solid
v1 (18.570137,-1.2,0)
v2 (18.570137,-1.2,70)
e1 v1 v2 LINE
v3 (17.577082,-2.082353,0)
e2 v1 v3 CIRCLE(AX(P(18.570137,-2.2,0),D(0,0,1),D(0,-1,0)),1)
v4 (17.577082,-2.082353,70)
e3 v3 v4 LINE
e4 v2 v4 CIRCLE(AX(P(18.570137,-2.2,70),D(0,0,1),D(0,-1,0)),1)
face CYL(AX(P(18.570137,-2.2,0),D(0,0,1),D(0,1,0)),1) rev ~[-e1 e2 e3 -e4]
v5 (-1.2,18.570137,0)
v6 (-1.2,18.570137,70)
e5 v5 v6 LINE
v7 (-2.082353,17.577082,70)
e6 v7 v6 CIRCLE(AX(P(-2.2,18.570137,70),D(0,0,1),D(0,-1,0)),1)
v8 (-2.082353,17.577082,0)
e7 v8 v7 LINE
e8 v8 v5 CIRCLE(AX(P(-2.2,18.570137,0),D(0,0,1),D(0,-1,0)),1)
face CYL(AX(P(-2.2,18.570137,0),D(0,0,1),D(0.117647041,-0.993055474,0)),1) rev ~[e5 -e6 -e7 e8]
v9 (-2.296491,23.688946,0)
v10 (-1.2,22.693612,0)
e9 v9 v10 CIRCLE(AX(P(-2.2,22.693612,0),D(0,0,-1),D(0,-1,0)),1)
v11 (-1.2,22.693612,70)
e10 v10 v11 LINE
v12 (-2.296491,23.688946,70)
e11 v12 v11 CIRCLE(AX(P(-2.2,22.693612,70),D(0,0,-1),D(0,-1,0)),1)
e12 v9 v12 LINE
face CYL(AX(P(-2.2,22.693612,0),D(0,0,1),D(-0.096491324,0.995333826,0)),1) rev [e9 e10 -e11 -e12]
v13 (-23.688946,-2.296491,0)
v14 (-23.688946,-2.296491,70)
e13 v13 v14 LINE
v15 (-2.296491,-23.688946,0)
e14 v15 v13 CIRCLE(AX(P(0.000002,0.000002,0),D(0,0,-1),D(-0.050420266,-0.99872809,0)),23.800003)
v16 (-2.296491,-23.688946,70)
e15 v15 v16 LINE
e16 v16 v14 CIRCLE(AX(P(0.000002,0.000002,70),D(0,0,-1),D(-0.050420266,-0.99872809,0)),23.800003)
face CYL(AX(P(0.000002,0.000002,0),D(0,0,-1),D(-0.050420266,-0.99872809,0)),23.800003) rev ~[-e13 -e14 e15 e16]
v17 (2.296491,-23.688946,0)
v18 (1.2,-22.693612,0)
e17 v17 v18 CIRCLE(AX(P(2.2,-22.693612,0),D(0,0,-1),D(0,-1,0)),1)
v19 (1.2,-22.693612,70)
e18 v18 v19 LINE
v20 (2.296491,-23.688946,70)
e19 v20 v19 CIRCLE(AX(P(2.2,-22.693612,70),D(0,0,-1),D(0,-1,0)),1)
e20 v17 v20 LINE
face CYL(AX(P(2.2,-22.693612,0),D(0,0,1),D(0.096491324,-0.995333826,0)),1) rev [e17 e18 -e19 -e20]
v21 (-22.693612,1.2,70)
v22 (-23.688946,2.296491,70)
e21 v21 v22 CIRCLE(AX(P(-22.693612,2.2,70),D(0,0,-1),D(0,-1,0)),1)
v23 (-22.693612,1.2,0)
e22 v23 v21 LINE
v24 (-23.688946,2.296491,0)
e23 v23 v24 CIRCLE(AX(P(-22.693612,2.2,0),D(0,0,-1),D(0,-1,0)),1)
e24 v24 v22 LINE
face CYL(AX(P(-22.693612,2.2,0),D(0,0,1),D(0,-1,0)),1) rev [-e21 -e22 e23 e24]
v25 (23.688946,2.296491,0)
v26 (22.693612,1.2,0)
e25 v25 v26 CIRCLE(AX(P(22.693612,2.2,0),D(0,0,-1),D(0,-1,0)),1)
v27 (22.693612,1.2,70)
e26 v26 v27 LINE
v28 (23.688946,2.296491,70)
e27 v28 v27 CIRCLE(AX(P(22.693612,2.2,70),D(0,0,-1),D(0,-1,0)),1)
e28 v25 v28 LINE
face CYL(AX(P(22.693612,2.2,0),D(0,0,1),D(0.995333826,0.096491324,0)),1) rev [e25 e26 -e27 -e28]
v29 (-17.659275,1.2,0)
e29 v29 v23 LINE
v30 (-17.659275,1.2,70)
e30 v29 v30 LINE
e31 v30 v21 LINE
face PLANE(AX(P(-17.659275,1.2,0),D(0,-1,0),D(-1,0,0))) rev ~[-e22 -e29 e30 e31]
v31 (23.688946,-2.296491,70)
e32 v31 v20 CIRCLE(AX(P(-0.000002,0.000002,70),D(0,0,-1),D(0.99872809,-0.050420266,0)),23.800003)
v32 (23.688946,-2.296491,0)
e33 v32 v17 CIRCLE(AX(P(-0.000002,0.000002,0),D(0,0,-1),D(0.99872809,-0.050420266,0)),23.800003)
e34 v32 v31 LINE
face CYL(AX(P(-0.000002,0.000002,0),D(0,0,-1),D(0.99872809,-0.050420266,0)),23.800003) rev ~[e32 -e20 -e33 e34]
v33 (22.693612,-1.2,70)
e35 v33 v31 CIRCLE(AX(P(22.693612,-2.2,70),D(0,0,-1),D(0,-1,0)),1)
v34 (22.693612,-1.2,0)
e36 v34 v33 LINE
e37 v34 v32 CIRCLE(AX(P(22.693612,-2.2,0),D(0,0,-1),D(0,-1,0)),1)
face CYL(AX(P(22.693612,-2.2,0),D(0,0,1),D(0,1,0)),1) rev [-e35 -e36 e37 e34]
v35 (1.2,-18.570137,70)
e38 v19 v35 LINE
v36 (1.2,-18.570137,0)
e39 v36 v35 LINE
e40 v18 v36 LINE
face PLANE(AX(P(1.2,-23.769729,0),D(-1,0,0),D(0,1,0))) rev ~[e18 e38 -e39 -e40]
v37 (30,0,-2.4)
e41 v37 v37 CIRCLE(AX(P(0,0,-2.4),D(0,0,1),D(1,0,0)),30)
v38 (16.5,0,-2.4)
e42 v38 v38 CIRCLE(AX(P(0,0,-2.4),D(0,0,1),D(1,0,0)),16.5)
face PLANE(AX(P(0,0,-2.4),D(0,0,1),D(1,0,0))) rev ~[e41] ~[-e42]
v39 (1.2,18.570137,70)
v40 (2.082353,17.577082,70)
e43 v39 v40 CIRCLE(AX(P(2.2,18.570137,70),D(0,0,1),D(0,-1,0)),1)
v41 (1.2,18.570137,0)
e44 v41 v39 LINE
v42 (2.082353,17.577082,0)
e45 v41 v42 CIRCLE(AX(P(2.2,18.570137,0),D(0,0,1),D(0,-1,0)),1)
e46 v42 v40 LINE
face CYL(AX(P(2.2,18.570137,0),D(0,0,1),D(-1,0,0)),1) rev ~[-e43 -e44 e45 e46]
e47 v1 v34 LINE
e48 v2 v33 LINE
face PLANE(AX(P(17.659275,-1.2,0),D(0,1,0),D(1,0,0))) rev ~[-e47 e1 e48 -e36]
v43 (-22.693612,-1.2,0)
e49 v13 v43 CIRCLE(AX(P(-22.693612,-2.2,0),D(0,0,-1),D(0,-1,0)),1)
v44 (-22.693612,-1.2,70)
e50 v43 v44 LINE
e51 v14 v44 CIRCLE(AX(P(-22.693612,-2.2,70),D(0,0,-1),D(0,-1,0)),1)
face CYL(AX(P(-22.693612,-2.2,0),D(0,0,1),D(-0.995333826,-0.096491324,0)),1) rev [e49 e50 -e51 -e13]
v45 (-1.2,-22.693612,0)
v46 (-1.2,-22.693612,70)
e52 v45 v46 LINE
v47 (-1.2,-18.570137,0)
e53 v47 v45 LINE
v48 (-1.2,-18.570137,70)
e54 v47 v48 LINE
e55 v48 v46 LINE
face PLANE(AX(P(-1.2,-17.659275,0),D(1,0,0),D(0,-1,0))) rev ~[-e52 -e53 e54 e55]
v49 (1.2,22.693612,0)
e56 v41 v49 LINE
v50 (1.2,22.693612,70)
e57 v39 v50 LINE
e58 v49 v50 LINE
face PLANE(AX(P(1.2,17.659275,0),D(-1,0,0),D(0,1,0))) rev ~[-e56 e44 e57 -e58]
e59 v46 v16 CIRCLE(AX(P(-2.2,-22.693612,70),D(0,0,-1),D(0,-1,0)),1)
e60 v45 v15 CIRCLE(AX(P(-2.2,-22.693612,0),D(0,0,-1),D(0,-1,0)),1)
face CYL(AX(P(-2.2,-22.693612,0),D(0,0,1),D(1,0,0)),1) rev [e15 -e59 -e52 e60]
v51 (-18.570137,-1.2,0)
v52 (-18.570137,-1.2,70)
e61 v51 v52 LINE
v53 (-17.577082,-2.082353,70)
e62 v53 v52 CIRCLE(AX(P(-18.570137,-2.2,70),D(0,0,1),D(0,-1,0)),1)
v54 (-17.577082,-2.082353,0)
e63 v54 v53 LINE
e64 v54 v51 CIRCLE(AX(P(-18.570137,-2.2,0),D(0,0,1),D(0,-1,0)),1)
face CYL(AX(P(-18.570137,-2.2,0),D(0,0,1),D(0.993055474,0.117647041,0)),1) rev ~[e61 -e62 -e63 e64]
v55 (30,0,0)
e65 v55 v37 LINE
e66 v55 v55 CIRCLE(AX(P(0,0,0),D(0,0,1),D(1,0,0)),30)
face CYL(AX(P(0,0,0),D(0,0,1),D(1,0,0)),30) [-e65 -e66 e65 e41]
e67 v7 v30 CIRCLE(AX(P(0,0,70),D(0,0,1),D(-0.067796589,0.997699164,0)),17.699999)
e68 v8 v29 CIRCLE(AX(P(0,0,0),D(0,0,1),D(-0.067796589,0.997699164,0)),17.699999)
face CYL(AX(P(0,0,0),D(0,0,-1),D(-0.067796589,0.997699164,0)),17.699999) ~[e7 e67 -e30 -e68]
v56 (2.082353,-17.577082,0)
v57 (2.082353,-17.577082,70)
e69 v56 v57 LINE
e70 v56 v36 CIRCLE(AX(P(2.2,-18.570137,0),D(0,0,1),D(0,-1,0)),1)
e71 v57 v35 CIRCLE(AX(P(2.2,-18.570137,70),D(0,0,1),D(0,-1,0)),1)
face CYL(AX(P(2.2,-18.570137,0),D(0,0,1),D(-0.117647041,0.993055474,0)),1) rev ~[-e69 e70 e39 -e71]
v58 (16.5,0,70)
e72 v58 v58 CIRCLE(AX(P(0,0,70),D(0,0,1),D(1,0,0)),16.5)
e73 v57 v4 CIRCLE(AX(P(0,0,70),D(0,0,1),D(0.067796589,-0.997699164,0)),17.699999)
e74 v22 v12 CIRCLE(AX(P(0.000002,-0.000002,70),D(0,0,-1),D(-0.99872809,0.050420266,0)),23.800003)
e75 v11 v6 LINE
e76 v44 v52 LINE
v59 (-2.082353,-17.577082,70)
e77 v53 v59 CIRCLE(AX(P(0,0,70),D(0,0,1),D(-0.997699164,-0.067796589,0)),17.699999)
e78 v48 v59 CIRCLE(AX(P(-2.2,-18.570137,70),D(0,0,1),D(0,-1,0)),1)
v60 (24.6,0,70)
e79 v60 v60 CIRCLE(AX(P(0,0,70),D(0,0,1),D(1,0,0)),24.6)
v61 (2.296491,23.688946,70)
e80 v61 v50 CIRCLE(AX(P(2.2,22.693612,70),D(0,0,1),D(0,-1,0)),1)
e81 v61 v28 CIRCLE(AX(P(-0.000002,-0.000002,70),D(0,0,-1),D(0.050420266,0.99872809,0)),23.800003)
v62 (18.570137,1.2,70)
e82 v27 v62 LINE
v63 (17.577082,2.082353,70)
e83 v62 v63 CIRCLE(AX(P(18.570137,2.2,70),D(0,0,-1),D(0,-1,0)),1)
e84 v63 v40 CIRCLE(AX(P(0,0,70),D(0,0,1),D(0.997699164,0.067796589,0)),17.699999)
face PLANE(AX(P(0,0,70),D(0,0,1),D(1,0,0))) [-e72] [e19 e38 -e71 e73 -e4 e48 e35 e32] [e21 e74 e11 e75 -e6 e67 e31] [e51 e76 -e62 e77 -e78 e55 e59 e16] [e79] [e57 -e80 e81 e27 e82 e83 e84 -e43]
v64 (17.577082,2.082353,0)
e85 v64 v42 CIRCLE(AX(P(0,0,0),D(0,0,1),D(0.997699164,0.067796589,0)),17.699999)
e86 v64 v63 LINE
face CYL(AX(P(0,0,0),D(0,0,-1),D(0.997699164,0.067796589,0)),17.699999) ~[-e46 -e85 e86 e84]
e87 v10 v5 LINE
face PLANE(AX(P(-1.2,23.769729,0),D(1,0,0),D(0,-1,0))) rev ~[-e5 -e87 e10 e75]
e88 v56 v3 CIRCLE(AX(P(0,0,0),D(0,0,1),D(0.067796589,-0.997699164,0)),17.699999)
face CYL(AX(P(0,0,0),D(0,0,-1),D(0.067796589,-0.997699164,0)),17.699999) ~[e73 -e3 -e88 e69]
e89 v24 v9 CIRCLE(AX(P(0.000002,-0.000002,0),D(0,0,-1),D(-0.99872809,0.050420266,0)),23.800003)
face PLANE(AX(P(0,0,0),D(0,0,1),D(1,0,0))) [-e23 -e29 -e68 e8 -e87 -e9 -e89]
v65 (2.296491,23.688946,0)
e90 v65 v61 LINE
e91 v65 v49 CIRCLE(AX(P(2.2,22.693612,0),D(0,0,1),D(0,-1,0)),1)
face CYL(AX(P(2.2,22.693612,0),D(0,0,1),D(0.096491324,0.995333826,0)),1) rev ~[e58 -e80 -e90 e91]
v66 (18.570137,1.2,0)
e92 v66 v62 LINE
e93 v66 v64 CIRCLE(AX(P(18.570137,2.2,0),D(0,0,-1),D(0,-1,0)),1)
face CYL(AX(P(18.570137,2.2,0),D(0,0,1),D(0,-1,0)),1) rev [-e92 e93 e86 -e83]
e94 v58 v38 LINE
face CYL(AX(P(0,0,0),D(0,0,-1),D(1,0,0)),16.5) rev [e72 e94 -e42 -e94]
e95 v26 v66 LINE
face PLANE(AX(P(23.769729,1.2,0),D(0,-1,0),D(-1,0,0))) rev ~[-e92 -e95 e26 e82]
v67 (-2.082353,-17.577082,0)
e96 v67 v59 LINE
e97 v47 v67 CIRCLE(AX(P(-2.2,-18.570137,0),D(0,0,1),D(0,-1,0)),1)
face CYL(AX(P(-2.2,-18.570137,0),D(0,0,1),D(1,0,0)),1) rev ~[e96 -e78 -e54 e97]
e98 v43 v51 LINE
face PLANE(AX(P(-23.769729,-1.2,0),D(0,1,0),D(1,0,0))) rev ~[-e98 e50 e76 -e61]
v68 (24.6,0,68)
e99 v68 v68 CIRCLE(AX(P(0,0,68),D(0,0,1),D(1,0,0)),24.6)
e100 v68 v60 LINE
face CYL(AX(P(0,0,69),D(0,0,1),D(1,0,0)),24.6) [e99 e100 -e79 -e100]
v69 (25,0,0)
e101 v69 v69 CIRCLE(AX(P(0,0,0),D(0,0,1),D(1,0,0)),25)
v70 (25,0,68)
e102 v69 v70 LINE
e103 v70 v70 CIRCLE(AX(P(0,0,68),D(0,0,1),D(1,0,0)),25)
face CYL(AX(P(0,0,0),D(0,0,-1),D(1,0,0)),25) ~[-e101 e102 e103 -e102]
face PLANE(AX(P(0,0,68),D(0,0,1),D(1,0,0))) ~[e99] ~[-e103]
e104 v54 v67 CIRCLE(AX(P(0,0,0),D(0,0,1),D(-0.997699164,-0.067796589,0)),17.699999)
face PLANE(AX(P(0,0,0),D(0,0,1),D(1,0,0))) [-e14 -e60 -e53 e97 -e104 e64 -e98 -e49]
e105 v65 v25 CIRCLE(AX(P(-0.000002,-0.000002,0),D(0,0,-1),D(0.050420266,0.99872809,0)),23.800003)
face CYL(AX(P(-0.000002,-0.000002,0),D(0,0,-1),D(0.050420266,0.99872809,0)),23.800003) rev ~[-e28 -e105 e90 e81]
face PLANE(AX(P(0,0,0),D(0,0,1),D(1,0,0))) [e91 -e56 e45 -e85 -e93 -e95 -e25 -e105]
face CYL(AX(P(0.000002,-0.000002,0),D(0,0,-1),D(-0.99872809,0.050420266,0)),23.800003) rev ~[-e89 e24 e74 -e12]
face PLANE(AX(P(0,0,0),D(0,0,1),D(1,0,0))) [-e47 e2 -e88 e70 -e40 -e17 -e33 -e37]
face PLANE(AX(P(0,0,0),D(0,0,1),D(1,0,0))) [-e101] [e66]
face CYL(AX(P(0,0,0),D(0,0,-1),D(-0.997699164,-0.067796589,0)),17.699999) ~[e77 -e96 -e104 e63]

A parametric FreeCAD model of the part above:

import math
import FreeCAD as App
import Part
import Sketcher
Q = App.Units.Quantity


def edges_at(feature, points):
    """Names of the edges that pass closest to the given points."""
    edges = feature.Shape.Edges
    near = lambda p: min(range(len(edges)), key=lambda i: edges[i].distToShape(Part.Vertex(*p))[0])
    return sorted({f"Edge{near(p) + 1}" for p in points})


def add_polygon(sketch, points):
    """Adds a closed chain of lines whose ends are joined by coincident constraints."""
    first, n = sketch.GeometryCount, len(points)
    for a, b in zip(points, points[1:] + points[:1]):
        sketch.addGeometry(Part.LineSegment(App.Vector(*a, 0), App.Vector(*b, 0)), False)
    for i in range(n):
        sketch.addConstraint(Sketcher.Constraint("Coincident", first + i, 2, first + (i + 1) % n, 1))

doc = App.newDocument("Part")
body = doc.addObject("PartDesign::Body", "Body")

sketch1 = doc.addObject("Sketcher::SketchObject", "Sketch")
body.addObject(sketch1)
sketch1.AttachmentSupport = (doc.XY_Plane, [""])
sketch1.MapMode = "FlatFace"
sketch1.addGeometry([
    Part.Circle(App.Vector(0, 0, 0), App.Vector(0, 0, 1), 30),
    Part.Circle(App.Vector(0, 0, 0), App.Vector(0, 0, 1), 16),
], False)
sketch1.addConstraint([
    Sketcher.Constraint("Coincident", 0, 3, -1, 1),
    Sketcher.Constraint("Coincident", 1, 3, -1, 1),
    Sketcher.Constraint("Diameter", 0, Q("60 mm")),
    Sketcher.Constraint("Diameter", 1, Q("33 mm")),
])
pad1 = doc.addObject("PartDesign::Pad", "Pad")
body.addObject(pad1)
pad1.Profile = sketch1
pad1.Length = 2.4
pad1.Reversed = True

sketch2 = doc.addObject("Sketcher::SketchObject", "Sketch001")
body.addObject(sketch2)
sketch2.AttachmentSupport = (doc.XY_Plane, [""])
sketch2.MapMode = "FlatFace"
sketch2.addGeometry([
    Part.Circle(App.Vector(0, 0, 0), App.Vector(0, 0, 1), 25),
    Part.LineSegment(App.Vector(-1, -18, 0), App.Vector(-1, -24, 0)),
    Part.ArcOfCircle(Part.Circle(App.Vector(0, 0, 0), App.Vector(0, 0, 1), 24), math.radians(-177), math.radians(-93)),
    Part.LineSegment(App.Vector(-24, -1, 0), App.Vector(-18, -1, 0)),
    Part.ArcOfCircle(Part.Circle(App.Vector(0, 0, 0), App.Vector(0, 0, 1), 18), math.radians(-176), math.radians(-94)),
    Part.LineSegment(App.Vector(18, -1, 0), App.Vector(24, -1, 0)),
    Part.ArcOfCircle(Part.Circle(App.Vector(0, 0, 0), App.Vector(0, 0, 1), 24), math.radians(-87), math.radians(-3)),
    Part.LineSegment(App.Vector(1, -24, 0), App.Vector(1, -18, 0)),
    Part.ArcOfCircle(Part.Circle(App.Vector(0, 0, 0), App.Vector(0, 0, 1), 18), math.radians(-86), math.radians(-4)),
    Part.LineSegment(App.Vector(-18, 1, 0), App.Vector(-24, 1, 0)),
    Part.ArcOfCircle(Part.Circle(App.Vector(0, 0, 0), App.Vector(0, 0, 1), 24), math.radians(93), math.radians(177)),
    Part.LineSegment(App.Vector(-1, 24, 0), App.Vector(-1, 18, 0)),
    Part.ArcOfCircle(Part.Circle(App.Vector(0, 0, 0), App.Vector(0, 0, 1), 18), math.radians(94), math.radians(176)),
    Part.Circle(App.Vector(0, 0, 0), App.Vector(0, 0, 1), 16),
    Part.ArcOfCircle(Part.Circle(App.Vector(0, 0, 0), App.Vector(0, 0, 1), 24), math.radians(3), math.radians(87)),
    Part.LineSegment(App.Vector(24, 1, 0), App.Vector(18, 1, 0)),
    Part.ArcOfCircle(Part.Circle(App.Vector(0, 0, 0), App.Vector(0, 0, 1), 18), math.radians(4), math.radians(86)),
    Part.LineSegment(App.Vector(1, 18, 0), App.Vector(1, 24, 0)),
], False)
sketch2.addConstraint([
    Sketcher.Constraint("Coincident", 1, 2, 2, 2),
    Sketcher.Constraint("Coincident", 2, 1, 3, 1),
    Sketcher.Constraint("Coincident", 3, 2, 4, 1),
    Sketcher.Constraint("Coincident", 4, 2, 1, 1),
    Sketcher.Constraint("Coincident", 5, 2, 6, 2),
    Sketcher.Constraint("Coincident", 6, 1, 7, 1),
    Sketcher.Constraint("Coincident", 7, 2, 8, 1),
    Sketcher.Constraint("Coincident", 8, 2, 5, 1),
    Sketcher.Constraint("Coincident", 9, 2, 10, 2),
    Sketcher.Constraint("Coincident", 10, 1, 11, 1),
    Sketcher.Constraint("Coincident", 11, 2, 12, 1),
    Sketcher.Constraint("Coincident", 12, 2, 9, 1),
    Sketcher.Constraint("Coincident", 14, 1, 15, 1),
    Sketcher.Constraint("Coincident", 15, 2, 16, 1),
    Sketcher.Constraint("Coincident", 16, 2, 17, 1),
    Sketcher.Constraint("Coincident", 17, 2, 14, 2),
    Sketcher.Constraint("Vertical", 1),
    Sketcher.Constraint("Horizontal", 3),
    Sketcher.Constraint("Horizontal", 5),
    Sketcher.Constraint("Vertical", 7),
    Sketcher.Constraint("Horizontal", 9),
    Sketcher.Constraint("Vertical", 11),
    Sketcher.Constraint("Horizontal", 15),
    Sketcher.Constraint("Vertical", 17),
    Sketcher.Constraint("Coincident", 0, 3, -1, 1),
    Sketcher.Constraint("Coincident", 2, 3, -1, 1),
    Sketcher.Constraint("Coincident", 4, 3, -1, 1),
    Sketcher.Constraint("Coincident", 6, 3, -1, 1),
    Sketcher.Constraint("Coincident", 8, 3, -1, 1),
    Sketcher.Constraint("Coincident", 10, 3, -1, 1),
    Sketcher.Constraint("Coincident", 12, 3, -1, 1),
    Sketcher.Constraint("Coincident", 13, 3, -1, 1),
    Sketcher.Constraint("Coincident", 14, 3, -1, 1),
    Sketcher.Constraint("Coincident", 16, 3, -1, 1),
    Sketcher.Constraint("Equal", 2, 6),
    Sketcher.Constraint("Equal", 4, 8),
    Sketcher.Constraint("Equal", 6, 10),
    Sketcher.Constraint("Equal", 8, 12),
    Sketcher.Constraint("Equal", 10, 14),
    Sketcher.Constraint("Equal", 12, 16),
    Sketcher.Constraint("Horizontal", 3, 2, 5, 2),
    Sketcher.Constraint("Horizontal", 1, 2, 6, 1),
    Sketcher.Constraint("Horizontal", 12, 2, 14, 1),
    Sketcher.Constraint("Horizontal", 11, 2, 16, 2),
    Sketcher.Constraint("Vertical", 2, 1, 9, 2),
    Sketcher.Constraint("Vertical", 4, 2, 10, 1),
    Sketcher.Constraint("Equal", 15, 1),
    Sketcher.Constraint("Diameter", 0, Q("50 mm")),
    Sketcher.Constraint("Diameter", 13, Q("33 mm")),
    Sketcher.Constraint("Radius", 4, Q("17.699999 mm")),
    Sketcher.Constraint("DistanceX", 1, 2, -1, 1, Q("1.2 mm")),
    Sketcher.Constraint("Radius", 2, Q("23.800003 mm")),
])
pad2 = doc.addObject("PartDesign::Pad", "Pad001")
body.addObject(pad2)
pad2.Profile = sketch2
pad2.Length = 70

sketch3 = doc.addObject("Sketcher::SketchObject", "Sketch002")
body.addObject(sketch3)
sketch3.AttachmentSupport = (doc.XZ_Plane, [""])
sketch3.MapMode = "FlatFace"
add_polygon(sketch3, [(24.6, 70), (24.6, 68), (25, 68), (25, 70)])
sketch3.addConstraint([
    Sketcher.Constraint("Vertical", 0),
    Sketcher.Constraint("Horizontal", 1),
    Sketcher.Constraint("Vertical", 2),
    Sketcher.Constraint("Horizontal", 3),
    Sketcher.Constraint("DistanceY", 0, 2, 0, 1, Q("2 mm")),
    Sketcher.Constraint("DistanceX", 1, 1, 1, 2, Q("0.4 mm")),
    Sketcher.Constraint("DistanceY", -1, 1, 0, 2, Q("68 mm")),
    Sketcher.Constraint("DistanceX", -1, 1, 1, 2, Q("25 mm")),
])
groove = doc.addObject("PartDesign::Groove", "Groove")
body.addObject(groove)
groove.Profile = sketch3
groove.ReferenceAxis = (sketch3, ["V_Axis"])
groove.Angle = 360
doc.recompute()

fillet = doc.addObject("PartDesign::Fillet", "Fillet")
body.addObject(fillet)
fillet.Base = (groove, edges_at(groove, [
    (-1.2, 23.77, 35),
    (-1.2, 17.659, 35),
    (1.2, 23.77, 35),
    (1.2, 17.659, 35),
    (17.659, 1.2, 35),
    (17.659, -1.2, 35),
    (1.2, -17.659, 35),
    (-1.2, -17.659, 35),
    (-17.659, -1.2, 35),
    (1.2, -23.77, 35),
    (23.77, -1.2, 35),
    (23.77, 1.2, 35),
    (-1.2, -23.77, 35),
    (-23.77, -1.2, 35),
    (-23.77, 1.2, 35),
]))
fillet.Radius = 1

doc.recompute()
